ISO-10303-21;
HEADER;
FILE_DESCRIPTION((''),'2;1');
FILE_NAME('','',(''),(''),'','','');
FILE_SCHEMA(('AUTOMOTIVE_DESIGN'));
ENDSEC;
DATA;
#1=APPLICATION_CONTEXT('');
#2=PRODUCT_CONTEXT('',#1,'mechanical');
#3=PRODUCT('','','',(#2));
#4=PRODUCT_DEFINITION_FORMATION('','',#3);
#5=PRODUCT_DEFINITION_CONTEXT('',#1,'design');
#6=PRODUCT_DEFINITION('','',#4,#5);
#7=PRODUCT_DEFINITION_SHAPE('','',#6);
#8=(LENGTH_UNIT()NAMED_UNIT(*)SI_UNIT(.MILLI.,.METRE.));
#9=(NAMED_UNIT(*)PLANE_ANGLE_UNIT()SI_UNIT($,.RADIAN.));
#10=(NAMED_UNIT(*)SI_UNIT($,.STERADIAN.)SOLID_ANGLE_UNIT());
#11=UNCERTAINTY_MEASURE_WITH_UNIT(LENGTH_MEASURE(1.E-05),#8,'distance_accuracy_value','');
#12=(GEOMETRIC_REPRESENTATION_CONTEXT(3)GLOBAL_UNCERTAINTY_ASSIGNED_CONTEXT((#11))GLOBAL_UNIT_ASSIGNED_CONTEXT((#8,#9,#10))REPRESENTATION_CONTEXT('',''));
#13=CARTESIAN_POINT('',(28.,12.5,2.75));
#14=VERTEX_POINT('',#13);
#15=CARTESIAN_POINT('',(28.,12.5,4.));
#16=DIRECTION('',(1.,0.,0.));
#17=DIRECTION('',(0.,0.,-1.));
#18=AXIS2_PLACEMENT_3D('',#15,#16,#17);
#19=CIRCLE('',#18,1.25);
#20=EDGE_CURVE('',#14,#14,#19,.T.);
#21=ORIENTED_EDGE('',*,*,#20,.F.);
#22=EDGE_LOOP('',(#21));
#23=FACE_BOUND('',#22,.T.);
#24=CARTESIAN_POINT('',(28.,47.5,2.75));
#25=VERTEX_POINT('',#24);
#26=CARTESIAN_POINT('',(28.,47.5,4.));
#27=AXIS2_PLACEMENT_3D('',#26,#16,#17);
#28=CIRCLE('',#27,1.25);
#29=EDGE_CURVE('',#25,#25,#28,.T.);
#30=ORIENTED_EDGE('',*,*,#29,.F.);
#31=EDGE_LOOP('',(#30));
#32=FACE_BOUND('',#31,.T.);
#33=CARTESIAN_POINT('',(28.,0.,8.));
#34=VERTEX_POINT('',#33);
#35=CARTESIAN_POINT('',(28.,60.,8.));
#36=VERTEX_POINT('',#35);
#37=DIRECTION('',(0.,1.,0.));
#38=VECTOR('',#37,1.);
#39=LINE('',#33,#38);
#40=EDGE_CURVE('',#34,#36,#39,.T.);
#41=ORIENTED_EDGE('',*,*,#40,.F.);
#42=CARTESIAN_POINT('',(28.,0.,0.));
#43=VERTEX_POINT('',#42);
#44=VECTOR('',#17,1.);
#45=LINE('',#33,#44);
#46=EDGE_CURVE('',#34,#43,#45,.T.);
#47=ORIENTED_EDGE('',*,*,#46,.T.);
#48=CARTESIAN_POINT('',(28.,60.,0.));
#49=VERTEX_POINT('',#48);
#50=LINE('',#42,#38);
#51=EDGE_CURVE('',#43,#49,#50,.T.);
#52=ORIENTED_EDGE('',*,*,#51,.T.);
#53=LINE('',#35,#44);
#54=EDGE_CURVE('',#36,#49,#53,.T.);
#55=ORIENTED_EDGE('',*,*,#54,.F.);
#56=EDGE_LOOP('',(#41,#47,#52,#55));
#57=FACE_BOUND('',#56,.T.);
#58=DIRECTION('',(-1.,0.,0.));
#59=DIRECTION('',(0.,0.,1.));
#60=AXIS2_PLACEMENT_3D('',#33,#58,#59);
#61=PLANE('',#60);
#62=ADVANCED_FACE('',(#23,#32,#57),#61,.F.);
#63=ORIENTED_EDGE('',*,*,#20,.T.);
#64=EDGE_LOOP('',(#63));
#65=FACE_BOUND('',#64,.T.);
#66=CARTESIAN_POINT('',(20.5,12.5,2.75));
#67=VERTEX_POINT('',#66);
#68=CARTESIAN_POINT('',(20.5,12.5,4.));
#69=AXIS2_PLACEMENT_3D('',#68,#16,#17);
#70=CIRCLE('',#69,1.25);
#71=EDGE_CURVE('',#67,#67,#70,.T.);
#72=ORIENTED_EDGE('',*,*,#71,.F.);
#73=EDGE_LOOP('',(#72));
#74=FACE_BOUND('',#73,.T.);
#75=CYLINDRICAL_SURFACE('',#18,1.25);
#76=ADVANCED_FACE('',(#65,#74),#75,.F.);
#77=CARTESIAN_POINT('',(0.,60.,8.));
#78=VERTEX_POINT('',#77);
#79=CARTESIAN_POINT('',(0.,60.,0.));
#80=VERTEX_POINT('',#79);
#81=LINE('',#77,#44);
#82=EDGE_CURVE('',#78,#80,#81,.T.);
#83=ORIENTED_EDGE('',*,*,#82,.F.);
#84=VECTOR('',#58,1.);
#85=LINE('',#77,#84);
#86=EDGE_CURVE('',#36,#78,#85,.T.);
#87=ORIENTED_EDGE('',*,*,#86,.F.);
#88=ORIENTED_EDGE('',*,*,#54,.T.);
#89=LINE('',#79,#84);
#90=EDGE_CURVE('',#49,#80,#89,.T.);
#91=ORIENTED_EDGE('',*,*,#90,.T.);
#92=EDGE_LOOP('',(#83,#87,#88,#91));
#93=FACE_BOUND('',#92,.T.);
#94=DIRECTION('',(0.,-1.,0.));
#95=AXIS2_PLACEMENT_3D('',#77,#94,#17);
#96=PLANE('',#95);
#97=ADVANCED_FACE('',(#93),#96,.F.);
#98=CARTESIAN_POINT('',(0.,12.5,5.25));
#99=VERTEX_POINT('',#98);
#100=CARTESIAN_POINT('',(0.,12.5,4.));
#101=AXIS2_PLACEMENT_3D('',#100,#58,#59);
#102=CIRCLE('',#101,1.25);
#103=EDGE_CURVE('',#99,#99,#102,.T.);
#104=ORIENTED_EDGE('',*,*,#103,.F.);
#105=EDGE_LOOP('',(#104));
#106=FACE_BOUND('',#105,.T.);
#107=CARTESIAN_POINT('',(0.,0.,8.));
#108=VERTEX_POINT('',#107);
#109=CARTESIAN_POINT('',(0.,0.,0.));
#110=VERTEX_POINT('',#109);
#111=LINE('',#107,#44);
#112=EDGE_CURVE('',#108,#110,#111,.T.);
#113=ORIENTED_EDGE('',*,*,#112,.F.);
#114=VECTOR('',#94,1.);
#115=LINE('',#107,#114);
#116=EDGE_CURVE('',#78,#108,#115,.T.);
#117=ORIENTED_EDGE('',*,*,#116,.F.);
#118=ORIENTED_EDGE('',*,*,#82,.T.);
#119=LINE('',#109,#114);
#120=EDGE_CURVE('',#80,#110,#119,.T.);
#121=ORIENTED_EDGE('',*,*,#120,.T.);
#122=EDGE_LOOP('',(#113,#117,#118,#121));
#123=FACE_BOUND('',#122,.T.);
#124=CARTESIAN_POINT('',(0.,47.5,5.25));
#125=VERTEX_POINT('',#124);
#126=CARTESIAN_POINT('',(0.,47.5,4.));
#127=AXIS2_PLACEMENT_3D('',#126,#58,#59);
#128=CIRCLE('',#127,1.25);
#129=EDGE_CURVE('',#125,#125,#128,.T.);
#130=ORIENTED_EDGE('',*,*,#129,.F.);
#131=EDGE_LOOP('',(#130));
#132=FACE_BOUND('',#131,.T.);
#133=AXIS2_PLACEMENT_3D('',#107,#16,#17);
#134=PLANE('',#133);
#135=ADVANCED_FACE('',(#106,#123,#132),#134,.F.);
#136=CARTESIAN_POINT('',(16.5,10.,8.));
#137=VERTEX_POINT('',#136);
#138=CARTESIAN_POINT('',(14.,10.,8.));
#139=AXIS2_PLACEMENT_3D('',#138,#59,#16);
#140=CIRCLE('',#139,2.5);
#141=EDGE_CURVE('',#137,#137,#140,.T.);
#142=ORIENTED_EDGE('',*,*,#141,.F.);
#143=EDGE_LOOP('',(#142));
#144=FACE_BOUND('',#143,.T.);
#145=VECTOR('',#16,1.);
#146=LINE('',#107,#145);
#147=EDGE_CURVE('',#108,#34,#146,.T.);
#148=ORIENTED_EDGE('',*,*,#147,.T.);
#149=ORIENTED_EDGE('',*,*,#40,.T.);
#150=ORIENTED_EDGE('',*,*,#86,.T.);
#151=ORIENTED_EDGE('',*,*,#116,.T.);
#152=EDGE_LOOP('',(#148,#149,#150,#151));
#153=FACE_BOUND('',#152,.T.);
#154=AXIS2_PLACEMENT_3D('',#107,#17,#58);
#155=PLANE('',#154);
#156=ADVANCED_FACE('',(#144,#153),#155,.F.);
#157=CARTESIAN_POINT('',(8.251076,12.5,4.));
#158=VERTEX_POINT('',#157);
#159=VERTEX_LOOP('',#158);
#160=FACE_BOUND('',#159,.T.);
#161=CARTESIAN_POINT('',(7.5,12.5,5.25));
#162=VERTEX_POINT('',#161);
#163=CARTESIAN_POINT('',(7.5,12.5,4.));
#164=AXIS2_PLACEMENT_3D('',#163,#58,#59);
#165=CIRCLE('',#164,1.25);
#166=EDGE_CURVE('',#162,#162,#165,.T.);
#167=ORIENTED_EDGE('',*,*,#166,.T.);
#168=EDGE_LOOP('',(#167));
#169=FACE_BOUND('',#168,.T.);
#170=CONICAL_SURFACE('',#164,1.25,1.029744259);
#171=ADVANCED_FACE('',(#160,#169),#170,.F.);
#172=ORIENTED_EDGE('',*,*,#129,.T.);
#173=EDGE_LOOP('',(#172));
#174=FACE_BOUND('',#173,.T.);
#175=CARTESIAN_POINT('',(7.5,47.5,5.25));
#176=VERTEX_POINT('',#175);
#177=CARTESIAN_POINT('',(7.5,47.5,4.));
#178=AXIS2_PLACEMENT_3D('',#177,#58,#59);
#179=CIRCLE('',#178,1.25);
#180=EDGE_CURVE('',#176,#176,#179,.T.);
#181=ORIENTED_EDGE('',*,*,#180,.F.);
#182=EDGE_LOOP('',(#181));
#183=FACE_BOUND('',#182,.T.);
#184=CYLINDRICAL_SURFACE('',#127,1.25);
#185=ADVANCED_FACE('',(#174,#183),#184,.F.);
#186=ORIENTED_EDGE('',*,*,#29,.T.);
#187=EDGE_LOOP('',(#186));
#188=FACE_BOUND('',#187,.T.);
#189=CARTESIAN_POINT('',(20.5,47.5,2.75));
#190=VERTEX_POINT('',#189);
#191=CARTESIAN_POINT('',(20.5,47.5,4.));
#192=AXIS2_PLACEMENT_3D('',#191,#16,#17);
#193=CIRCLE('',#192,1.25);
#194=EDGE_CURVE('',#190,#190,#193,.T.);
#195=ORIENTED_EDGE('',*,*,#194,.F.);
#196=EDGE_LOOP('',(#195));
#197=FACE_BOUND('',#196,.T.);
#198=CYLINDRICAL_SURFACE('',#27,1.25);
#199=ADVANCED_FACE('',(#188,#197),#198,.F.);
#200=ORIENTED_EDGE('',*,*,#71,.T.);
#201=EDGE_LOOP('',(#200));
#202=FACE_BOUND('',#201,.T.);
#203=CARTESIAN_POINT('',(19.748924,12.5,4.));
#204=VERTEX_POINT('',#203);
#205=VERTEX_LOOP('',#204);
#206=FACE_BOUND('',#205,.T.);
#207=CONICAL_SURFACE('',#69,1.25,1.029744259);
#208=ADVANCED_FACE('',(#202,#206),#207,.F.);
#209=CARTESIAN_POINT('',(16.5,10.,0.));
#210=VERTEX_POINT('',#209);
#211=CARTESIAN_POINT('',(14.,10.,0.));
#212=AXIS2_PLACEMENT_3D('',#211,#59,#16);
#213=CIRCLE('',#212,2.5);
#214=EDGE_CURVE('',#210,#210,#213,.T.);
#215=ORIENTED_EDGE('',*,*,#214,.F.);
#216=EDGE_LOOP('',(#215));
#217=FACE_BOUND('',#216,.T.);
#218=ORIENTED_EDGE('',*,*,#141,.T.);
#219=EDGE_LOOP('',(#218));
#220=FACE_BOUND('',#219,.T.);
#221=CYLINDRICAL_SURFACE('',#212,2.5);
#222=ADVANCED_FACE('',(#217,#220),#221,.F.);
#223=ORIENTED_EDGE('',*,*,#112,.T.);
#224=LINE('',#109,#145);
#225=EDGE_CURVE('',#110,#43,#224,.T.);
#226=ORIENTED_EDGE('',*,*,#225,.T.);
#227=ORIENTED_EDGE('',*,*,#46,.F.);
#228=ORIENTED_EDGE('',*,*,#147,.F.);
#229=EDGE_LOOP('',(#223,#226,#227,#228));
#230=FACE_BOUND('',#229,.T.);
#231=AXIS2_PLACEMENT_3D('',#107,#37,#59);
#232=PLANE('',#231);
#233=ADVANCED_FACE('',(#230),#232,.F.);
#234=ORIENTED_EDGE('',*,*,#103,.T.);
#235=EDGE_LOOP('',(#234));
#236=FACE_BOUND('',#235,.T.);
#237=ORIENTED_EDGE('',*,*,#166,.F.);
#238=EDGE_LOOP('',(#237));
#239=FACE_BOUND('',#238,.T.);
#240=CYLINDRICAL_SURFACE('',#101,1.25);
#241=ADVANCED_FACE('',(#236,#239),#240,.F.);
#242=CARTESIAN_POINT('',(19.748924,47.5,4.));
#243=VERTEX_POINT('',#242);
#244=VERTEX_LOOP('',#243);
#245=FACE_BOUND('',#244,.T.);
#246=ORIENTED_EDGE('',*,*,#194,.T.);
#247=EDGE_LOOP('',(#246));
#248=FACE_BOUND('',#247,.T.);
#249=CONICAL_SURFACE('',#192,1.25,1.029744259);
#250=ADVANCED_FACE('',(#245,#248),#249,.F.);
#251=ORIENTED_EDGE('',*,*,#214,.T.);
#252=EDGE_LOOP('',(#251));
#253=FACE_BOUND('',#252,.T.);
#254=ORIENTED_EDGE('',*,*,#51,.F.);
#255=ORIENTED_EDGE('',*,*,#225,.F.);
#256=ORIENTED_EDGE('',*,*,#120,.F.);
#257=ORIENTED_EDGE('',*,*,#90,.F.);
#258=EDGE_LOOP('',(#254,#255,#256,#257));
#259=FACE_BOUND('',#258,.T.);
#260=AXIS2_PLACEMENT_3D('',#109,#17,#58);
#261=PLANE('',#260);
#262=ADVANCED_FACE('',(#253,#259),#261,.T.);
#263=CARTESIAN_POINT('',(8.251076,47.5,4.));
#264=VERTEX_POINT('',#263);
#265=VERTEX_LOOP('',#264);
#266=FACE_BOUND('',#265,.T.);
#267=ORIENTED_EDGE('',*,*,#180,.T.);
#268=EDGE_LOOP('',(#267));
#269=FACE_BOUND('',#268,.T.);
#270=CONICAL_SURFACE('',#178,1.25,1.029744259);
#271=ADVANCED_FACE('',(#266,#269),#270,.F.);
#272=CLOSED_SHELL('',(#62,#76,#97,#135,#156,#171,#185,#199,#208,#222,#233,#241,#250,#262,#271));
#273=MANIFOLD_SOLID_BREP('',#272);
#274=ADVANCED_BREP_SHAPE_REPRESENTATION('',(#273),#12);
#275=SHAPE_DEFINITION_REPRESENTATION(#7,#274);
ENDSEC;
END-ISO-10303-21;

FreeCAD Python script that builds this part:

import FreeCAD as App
import Part
import Sketcher
Q = App.Units.Quantity

doc = App.newDocument("Part")
params = doc.addObject("Spreadsheet::Sheet", "Params")
for row, (alias, value) in enumerate([
    ("sketch1_width", "28 mm"),
    ("sketch1_height", "60 mm"),
    ("pad1_length", "8 mm"),
    ("sketch2_diameter", "5 mm"),
    ("sketch3_diameter", "2.5 mm"),
    ("hole_diameter", "2.5 mm"),
    ("hole_depth", "7.5 mm"),
    ("sketch4_diameter", "2.5 mm"),
    ("hole2_diameter", "2.5 mm"),
    ("hole2_depth", "7.5 mm"),
], start=1):
    params.set(f"A{row}", alias)
    params.set(f"B{row}", "=" + value)
    params.setAlias(f"B{row}", alias)

body = doc.addObject("PartDesign::Body", "Body")

# Sketch on XY plane
sketch1 = body.newObject("Sketcher::SketchObject", "Sketch")
sketch1.AttachmentSupport = (doc.getObject("XY_Plane"), [""])
sketch1.MapMode = "FlatFace"
sketch1.addGeometry([
    Part.LineSegment(App.Vector(0, 60, 0), App.Vector(0, 0, 0)),
    Part.LineSegment(App.Vector(0, 0, 0), App.Vector(28, 0, 0)),
    Part.LineSegment(App.Vector(28, 0, 0), App.Vector(28, 60, 0)),
    Part.LineSegment(App.Vector(28, 60, 0), App.Vector(0, 60, 0)),
], False)
sketch1.addConstraint([
    Sketcher.Constraint("Coincident", 0, 2, 1, 1),
    Sketcher.Constraint("Coincident", 1, 2, 2, 1),
    Sketcher.Constraint("Coincident", 2, 2, 3, 1),
    Sketcher.Constraint("Coincident", 3, 2, 0, 1),
    Sketcher.Constraint("Vertical", 0),
    Sketcher.Constraint("Horizontal", 1),
    Sketcher.Constraint("Vertical", 2),
    Sketcher.Constraint("Horizontal", 3),
    Sketcher.Constraint("Coincident", 0, 2, -1, 1),
    Sketcher.Constraint("DistanceX", 1, 1, 1, 2, Q("28 mm")),
    Sketcher.Constraint("DistanceY", 0, 2, 0, 1, Q("60 mm")),
])
sketch1.setExpression("Constraints[9]", "Params.sketch1_width")
sketch1.setExpression("Constraints[10]", "Params.sketch1_height")
pad1 = body.newObject("PartDesign::Pad", "Pad")
pad1.Profile = sketch1
pad1.setExpression("Length", "Params.pad1_length")

# Sketch on XY plane
sketch2 = body.newObject("Sketcher::SketchObject", "Sketch001")
sketch2.AttachmentSupport = (doc.getObject("XY_Plane"), [""])
sketch2.MapMode = "FlatFace"
sketch2.AttachmentOffset = App.Placement(App.Vector(0, 0, 8), App.Rotation())
sketch2.addGeometry(Part.Circle(App.Vector(14, 10, 0), App.Vector(0, 0, 1), 2.5), False)
sketch2.addConstraint([
    Sketcher.Constraint("Diameter", 0, Q("5 mm")),
    Sketcher.Constraint("DistanceX", -1, 1, 0, 3, Q("14 mm")),
    Sketcher.Constraint("DistanceY", -1, 1, 0, 3, Q("10 mm")),
])
sketch2.setExpression("Constraints[0]", "Params.sketch2_diameter")
pocket1 = body.newObject("PartDesign::Pocket", "Pocket")
pocket1.Profile = sketch2
pocket1.Type = "ThroughAll"

# Sketch on YZ plane
sketch3 = body.newObject("Sketcher::SketchObject", "Sketch002")
sketch3.AttachmentSupport = (doc.getObject("YZ_Plane"), [""])
sketch3.MapMode = "FlatFace"
sketch3.addGeometry([
    Part.Circle(App.Vector(47.5, 4, 0), App.Vector(0, 0, 1), 1.2),
    Part.Circle(App.Vector(12.5, 4, 0), App.Vector(0, 0, 1), 1.2),
], False)
sketch3.addConstraint([
    Sketcher.Constraint("Equal", 0, 1),
    Sketcher.Constraint("Horizontal", 0, 3, 1, 3),
    Sketcher.Constraint("Diameter", 0, Q("2.5 mm")),
    Sketcher.Constraint("DistanceY", -1, 1, 0, 3, Q("4 mm")),
    Sketcher.Constraint("DistanceX", 1, 3, 0, 3, Q("35 mm")),
    Sketcher.Constraint("DistanceX", -1, 1, 0, 3, Q("47.5 mm")),
])
sketch3.setExpression("Constraints[2]", "Params.sketch3_diameter")
doc.recompute()
hole = body.newObject("PartDesign::Hole", "Hole")
hole.Profile = sketch3
hole.ThreadType = "None"
hole.setExpression("Diameter", "Params.hole_diameter")
hole.DepthType = "Dimension"
hole.setExpression("Depth", "Params.hole_depth")
hole.DrillPoint = "Angled"
hole.DrillPointAngle = 118
hole.Reversed = True

# Sketch on YZ plane
sketch4 = body.newObject("Sketcher::SketchObject", "Sketch003")
sketch4.AttachmentSupport = (doc.getObject("YZ_Plane"), [""])
sketch4.MapMode = "FlatFace"
sketch4.AttachmentOffset = App.Placement(App.Vector(0, 0, 28), App.Rotation())
sketch4.addGeometry([
    Part.Circle(App.Vector(47.5, 4, 0), App.Vector(0, 0, 1), 1.2),
    Part.Circle(App.Vector(12.5, 4, 0), App.Vector(0, 0, 1), 1.2),
], False)
sketch4.addConstraint([
    Sketcher.Constraint("Equal", 0, 1),
    Sketcher.Constraint("Horizontal", 0, 3, 1, 3),
    Sketcher.Constraint("Diameter", 0, Q("2.5 mm")),
    Sketcher.Constraint("DistanceY", -1, 1, 0, 3, Q("4 mm")),
    Sketcher.Constraint("DistanceX", 1, 3, 0, 3, Q("35 mm")),
    Sketcher.Constraint("DistanceX", -1, 1, 0, 3, Q("47.5 mm")),
])
sketch4.setExpression("Constraints[2]", "Params.sketch4_diameter")
doc.recompute()
hole2 = body.newObject("PartDesign::Hole", "Hole001")
hole2.Profile = sketch4
hole2.ThreadType = "None"
hole2.setExpression("Diameter", "Params.hole2_diameter")
hole2.DepthType = "Dimension"
hole2.setExpression("Depth", "Params.hole2_depth")
hole2.DrillPoint = "Angled"
hole2.DrillPointAngle = 118

doc.recompute()
